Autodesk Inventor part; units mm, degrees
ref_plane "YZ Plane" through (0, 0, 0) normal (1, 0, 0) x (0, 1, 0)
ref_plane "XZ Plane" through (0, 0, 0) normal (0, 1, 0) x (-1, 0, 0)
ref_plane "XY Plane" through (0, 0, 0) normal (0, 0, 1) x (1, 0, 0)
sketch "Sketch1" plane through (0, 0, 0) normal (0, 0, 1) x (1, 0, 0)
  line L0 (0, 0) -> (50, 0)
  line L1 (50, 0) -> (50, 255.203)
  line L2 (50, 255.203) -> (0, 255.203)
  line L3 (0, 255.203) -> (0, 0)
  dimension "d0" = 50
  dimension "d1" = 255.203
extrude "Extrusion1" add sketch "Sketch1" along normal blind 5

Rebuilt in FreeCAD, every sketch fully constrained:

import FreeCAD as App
import Part
import Sketcher

V = App.Vector
Q = App.Units.Quantity

doc = App.newDocument("Part")
body = doc.addObject("PartDesign::Body", "Body")

sketch1 = body.newObject("Sketcher::SketchObject", "Sketch")
sketch1.AttachmentSupport = (doc.getObject("XY_Plane"), [""])
sketch1.MapMode = "FlatFace"
sketch1.addGeometry([
    Part.LineSegment(V(0, 255.203, 0), V(0, 0, 0)),
    Part.LineSegment(V(0, 0, 0), V(50, 0, 0)),
    Part.LineSegment(V(50, 0, 0), V(50, 255.203, 0)),
    Part.LineSegment(V(50, 255.203, 0), V(0, 255.203, 0)),
], False)
sketch1.addConstraint([
    Sketcher.Constraint("Coincident", 0, 2, 1, 1),
    Sketcher.Constraint("Coincident", 1, 2, 2, 1),
    Sketcher.Constraint("Coincident", 2, 2, 3, 1),
    Sketcher.Constraint("Coincident", 3, 2, 0, 1),
    Sketcher.Constraint("Vertical", 0),
    Sketcher.Constraint("Horizontal", 1),
    Sketcher.Constraint("Vertical", 2),
    Sketcher.Constraint("Horizontal", 3),
    Sketcher.Constraint("Coincident", 0, 2, -1, 1),
    Sketcher.Constraint("DistanceX", 1, 1, 1, 2, Q("50 mm")),
    Sketcher.Constraint("DistanceY", 0, 2, 0, 1, Q("255.203 mm")),
])
pad1 = body.newObject("PartDesign::Pad", "Pad")
pad1.Profile = sketch1
pad1.Length = 5

doc.recompute()
